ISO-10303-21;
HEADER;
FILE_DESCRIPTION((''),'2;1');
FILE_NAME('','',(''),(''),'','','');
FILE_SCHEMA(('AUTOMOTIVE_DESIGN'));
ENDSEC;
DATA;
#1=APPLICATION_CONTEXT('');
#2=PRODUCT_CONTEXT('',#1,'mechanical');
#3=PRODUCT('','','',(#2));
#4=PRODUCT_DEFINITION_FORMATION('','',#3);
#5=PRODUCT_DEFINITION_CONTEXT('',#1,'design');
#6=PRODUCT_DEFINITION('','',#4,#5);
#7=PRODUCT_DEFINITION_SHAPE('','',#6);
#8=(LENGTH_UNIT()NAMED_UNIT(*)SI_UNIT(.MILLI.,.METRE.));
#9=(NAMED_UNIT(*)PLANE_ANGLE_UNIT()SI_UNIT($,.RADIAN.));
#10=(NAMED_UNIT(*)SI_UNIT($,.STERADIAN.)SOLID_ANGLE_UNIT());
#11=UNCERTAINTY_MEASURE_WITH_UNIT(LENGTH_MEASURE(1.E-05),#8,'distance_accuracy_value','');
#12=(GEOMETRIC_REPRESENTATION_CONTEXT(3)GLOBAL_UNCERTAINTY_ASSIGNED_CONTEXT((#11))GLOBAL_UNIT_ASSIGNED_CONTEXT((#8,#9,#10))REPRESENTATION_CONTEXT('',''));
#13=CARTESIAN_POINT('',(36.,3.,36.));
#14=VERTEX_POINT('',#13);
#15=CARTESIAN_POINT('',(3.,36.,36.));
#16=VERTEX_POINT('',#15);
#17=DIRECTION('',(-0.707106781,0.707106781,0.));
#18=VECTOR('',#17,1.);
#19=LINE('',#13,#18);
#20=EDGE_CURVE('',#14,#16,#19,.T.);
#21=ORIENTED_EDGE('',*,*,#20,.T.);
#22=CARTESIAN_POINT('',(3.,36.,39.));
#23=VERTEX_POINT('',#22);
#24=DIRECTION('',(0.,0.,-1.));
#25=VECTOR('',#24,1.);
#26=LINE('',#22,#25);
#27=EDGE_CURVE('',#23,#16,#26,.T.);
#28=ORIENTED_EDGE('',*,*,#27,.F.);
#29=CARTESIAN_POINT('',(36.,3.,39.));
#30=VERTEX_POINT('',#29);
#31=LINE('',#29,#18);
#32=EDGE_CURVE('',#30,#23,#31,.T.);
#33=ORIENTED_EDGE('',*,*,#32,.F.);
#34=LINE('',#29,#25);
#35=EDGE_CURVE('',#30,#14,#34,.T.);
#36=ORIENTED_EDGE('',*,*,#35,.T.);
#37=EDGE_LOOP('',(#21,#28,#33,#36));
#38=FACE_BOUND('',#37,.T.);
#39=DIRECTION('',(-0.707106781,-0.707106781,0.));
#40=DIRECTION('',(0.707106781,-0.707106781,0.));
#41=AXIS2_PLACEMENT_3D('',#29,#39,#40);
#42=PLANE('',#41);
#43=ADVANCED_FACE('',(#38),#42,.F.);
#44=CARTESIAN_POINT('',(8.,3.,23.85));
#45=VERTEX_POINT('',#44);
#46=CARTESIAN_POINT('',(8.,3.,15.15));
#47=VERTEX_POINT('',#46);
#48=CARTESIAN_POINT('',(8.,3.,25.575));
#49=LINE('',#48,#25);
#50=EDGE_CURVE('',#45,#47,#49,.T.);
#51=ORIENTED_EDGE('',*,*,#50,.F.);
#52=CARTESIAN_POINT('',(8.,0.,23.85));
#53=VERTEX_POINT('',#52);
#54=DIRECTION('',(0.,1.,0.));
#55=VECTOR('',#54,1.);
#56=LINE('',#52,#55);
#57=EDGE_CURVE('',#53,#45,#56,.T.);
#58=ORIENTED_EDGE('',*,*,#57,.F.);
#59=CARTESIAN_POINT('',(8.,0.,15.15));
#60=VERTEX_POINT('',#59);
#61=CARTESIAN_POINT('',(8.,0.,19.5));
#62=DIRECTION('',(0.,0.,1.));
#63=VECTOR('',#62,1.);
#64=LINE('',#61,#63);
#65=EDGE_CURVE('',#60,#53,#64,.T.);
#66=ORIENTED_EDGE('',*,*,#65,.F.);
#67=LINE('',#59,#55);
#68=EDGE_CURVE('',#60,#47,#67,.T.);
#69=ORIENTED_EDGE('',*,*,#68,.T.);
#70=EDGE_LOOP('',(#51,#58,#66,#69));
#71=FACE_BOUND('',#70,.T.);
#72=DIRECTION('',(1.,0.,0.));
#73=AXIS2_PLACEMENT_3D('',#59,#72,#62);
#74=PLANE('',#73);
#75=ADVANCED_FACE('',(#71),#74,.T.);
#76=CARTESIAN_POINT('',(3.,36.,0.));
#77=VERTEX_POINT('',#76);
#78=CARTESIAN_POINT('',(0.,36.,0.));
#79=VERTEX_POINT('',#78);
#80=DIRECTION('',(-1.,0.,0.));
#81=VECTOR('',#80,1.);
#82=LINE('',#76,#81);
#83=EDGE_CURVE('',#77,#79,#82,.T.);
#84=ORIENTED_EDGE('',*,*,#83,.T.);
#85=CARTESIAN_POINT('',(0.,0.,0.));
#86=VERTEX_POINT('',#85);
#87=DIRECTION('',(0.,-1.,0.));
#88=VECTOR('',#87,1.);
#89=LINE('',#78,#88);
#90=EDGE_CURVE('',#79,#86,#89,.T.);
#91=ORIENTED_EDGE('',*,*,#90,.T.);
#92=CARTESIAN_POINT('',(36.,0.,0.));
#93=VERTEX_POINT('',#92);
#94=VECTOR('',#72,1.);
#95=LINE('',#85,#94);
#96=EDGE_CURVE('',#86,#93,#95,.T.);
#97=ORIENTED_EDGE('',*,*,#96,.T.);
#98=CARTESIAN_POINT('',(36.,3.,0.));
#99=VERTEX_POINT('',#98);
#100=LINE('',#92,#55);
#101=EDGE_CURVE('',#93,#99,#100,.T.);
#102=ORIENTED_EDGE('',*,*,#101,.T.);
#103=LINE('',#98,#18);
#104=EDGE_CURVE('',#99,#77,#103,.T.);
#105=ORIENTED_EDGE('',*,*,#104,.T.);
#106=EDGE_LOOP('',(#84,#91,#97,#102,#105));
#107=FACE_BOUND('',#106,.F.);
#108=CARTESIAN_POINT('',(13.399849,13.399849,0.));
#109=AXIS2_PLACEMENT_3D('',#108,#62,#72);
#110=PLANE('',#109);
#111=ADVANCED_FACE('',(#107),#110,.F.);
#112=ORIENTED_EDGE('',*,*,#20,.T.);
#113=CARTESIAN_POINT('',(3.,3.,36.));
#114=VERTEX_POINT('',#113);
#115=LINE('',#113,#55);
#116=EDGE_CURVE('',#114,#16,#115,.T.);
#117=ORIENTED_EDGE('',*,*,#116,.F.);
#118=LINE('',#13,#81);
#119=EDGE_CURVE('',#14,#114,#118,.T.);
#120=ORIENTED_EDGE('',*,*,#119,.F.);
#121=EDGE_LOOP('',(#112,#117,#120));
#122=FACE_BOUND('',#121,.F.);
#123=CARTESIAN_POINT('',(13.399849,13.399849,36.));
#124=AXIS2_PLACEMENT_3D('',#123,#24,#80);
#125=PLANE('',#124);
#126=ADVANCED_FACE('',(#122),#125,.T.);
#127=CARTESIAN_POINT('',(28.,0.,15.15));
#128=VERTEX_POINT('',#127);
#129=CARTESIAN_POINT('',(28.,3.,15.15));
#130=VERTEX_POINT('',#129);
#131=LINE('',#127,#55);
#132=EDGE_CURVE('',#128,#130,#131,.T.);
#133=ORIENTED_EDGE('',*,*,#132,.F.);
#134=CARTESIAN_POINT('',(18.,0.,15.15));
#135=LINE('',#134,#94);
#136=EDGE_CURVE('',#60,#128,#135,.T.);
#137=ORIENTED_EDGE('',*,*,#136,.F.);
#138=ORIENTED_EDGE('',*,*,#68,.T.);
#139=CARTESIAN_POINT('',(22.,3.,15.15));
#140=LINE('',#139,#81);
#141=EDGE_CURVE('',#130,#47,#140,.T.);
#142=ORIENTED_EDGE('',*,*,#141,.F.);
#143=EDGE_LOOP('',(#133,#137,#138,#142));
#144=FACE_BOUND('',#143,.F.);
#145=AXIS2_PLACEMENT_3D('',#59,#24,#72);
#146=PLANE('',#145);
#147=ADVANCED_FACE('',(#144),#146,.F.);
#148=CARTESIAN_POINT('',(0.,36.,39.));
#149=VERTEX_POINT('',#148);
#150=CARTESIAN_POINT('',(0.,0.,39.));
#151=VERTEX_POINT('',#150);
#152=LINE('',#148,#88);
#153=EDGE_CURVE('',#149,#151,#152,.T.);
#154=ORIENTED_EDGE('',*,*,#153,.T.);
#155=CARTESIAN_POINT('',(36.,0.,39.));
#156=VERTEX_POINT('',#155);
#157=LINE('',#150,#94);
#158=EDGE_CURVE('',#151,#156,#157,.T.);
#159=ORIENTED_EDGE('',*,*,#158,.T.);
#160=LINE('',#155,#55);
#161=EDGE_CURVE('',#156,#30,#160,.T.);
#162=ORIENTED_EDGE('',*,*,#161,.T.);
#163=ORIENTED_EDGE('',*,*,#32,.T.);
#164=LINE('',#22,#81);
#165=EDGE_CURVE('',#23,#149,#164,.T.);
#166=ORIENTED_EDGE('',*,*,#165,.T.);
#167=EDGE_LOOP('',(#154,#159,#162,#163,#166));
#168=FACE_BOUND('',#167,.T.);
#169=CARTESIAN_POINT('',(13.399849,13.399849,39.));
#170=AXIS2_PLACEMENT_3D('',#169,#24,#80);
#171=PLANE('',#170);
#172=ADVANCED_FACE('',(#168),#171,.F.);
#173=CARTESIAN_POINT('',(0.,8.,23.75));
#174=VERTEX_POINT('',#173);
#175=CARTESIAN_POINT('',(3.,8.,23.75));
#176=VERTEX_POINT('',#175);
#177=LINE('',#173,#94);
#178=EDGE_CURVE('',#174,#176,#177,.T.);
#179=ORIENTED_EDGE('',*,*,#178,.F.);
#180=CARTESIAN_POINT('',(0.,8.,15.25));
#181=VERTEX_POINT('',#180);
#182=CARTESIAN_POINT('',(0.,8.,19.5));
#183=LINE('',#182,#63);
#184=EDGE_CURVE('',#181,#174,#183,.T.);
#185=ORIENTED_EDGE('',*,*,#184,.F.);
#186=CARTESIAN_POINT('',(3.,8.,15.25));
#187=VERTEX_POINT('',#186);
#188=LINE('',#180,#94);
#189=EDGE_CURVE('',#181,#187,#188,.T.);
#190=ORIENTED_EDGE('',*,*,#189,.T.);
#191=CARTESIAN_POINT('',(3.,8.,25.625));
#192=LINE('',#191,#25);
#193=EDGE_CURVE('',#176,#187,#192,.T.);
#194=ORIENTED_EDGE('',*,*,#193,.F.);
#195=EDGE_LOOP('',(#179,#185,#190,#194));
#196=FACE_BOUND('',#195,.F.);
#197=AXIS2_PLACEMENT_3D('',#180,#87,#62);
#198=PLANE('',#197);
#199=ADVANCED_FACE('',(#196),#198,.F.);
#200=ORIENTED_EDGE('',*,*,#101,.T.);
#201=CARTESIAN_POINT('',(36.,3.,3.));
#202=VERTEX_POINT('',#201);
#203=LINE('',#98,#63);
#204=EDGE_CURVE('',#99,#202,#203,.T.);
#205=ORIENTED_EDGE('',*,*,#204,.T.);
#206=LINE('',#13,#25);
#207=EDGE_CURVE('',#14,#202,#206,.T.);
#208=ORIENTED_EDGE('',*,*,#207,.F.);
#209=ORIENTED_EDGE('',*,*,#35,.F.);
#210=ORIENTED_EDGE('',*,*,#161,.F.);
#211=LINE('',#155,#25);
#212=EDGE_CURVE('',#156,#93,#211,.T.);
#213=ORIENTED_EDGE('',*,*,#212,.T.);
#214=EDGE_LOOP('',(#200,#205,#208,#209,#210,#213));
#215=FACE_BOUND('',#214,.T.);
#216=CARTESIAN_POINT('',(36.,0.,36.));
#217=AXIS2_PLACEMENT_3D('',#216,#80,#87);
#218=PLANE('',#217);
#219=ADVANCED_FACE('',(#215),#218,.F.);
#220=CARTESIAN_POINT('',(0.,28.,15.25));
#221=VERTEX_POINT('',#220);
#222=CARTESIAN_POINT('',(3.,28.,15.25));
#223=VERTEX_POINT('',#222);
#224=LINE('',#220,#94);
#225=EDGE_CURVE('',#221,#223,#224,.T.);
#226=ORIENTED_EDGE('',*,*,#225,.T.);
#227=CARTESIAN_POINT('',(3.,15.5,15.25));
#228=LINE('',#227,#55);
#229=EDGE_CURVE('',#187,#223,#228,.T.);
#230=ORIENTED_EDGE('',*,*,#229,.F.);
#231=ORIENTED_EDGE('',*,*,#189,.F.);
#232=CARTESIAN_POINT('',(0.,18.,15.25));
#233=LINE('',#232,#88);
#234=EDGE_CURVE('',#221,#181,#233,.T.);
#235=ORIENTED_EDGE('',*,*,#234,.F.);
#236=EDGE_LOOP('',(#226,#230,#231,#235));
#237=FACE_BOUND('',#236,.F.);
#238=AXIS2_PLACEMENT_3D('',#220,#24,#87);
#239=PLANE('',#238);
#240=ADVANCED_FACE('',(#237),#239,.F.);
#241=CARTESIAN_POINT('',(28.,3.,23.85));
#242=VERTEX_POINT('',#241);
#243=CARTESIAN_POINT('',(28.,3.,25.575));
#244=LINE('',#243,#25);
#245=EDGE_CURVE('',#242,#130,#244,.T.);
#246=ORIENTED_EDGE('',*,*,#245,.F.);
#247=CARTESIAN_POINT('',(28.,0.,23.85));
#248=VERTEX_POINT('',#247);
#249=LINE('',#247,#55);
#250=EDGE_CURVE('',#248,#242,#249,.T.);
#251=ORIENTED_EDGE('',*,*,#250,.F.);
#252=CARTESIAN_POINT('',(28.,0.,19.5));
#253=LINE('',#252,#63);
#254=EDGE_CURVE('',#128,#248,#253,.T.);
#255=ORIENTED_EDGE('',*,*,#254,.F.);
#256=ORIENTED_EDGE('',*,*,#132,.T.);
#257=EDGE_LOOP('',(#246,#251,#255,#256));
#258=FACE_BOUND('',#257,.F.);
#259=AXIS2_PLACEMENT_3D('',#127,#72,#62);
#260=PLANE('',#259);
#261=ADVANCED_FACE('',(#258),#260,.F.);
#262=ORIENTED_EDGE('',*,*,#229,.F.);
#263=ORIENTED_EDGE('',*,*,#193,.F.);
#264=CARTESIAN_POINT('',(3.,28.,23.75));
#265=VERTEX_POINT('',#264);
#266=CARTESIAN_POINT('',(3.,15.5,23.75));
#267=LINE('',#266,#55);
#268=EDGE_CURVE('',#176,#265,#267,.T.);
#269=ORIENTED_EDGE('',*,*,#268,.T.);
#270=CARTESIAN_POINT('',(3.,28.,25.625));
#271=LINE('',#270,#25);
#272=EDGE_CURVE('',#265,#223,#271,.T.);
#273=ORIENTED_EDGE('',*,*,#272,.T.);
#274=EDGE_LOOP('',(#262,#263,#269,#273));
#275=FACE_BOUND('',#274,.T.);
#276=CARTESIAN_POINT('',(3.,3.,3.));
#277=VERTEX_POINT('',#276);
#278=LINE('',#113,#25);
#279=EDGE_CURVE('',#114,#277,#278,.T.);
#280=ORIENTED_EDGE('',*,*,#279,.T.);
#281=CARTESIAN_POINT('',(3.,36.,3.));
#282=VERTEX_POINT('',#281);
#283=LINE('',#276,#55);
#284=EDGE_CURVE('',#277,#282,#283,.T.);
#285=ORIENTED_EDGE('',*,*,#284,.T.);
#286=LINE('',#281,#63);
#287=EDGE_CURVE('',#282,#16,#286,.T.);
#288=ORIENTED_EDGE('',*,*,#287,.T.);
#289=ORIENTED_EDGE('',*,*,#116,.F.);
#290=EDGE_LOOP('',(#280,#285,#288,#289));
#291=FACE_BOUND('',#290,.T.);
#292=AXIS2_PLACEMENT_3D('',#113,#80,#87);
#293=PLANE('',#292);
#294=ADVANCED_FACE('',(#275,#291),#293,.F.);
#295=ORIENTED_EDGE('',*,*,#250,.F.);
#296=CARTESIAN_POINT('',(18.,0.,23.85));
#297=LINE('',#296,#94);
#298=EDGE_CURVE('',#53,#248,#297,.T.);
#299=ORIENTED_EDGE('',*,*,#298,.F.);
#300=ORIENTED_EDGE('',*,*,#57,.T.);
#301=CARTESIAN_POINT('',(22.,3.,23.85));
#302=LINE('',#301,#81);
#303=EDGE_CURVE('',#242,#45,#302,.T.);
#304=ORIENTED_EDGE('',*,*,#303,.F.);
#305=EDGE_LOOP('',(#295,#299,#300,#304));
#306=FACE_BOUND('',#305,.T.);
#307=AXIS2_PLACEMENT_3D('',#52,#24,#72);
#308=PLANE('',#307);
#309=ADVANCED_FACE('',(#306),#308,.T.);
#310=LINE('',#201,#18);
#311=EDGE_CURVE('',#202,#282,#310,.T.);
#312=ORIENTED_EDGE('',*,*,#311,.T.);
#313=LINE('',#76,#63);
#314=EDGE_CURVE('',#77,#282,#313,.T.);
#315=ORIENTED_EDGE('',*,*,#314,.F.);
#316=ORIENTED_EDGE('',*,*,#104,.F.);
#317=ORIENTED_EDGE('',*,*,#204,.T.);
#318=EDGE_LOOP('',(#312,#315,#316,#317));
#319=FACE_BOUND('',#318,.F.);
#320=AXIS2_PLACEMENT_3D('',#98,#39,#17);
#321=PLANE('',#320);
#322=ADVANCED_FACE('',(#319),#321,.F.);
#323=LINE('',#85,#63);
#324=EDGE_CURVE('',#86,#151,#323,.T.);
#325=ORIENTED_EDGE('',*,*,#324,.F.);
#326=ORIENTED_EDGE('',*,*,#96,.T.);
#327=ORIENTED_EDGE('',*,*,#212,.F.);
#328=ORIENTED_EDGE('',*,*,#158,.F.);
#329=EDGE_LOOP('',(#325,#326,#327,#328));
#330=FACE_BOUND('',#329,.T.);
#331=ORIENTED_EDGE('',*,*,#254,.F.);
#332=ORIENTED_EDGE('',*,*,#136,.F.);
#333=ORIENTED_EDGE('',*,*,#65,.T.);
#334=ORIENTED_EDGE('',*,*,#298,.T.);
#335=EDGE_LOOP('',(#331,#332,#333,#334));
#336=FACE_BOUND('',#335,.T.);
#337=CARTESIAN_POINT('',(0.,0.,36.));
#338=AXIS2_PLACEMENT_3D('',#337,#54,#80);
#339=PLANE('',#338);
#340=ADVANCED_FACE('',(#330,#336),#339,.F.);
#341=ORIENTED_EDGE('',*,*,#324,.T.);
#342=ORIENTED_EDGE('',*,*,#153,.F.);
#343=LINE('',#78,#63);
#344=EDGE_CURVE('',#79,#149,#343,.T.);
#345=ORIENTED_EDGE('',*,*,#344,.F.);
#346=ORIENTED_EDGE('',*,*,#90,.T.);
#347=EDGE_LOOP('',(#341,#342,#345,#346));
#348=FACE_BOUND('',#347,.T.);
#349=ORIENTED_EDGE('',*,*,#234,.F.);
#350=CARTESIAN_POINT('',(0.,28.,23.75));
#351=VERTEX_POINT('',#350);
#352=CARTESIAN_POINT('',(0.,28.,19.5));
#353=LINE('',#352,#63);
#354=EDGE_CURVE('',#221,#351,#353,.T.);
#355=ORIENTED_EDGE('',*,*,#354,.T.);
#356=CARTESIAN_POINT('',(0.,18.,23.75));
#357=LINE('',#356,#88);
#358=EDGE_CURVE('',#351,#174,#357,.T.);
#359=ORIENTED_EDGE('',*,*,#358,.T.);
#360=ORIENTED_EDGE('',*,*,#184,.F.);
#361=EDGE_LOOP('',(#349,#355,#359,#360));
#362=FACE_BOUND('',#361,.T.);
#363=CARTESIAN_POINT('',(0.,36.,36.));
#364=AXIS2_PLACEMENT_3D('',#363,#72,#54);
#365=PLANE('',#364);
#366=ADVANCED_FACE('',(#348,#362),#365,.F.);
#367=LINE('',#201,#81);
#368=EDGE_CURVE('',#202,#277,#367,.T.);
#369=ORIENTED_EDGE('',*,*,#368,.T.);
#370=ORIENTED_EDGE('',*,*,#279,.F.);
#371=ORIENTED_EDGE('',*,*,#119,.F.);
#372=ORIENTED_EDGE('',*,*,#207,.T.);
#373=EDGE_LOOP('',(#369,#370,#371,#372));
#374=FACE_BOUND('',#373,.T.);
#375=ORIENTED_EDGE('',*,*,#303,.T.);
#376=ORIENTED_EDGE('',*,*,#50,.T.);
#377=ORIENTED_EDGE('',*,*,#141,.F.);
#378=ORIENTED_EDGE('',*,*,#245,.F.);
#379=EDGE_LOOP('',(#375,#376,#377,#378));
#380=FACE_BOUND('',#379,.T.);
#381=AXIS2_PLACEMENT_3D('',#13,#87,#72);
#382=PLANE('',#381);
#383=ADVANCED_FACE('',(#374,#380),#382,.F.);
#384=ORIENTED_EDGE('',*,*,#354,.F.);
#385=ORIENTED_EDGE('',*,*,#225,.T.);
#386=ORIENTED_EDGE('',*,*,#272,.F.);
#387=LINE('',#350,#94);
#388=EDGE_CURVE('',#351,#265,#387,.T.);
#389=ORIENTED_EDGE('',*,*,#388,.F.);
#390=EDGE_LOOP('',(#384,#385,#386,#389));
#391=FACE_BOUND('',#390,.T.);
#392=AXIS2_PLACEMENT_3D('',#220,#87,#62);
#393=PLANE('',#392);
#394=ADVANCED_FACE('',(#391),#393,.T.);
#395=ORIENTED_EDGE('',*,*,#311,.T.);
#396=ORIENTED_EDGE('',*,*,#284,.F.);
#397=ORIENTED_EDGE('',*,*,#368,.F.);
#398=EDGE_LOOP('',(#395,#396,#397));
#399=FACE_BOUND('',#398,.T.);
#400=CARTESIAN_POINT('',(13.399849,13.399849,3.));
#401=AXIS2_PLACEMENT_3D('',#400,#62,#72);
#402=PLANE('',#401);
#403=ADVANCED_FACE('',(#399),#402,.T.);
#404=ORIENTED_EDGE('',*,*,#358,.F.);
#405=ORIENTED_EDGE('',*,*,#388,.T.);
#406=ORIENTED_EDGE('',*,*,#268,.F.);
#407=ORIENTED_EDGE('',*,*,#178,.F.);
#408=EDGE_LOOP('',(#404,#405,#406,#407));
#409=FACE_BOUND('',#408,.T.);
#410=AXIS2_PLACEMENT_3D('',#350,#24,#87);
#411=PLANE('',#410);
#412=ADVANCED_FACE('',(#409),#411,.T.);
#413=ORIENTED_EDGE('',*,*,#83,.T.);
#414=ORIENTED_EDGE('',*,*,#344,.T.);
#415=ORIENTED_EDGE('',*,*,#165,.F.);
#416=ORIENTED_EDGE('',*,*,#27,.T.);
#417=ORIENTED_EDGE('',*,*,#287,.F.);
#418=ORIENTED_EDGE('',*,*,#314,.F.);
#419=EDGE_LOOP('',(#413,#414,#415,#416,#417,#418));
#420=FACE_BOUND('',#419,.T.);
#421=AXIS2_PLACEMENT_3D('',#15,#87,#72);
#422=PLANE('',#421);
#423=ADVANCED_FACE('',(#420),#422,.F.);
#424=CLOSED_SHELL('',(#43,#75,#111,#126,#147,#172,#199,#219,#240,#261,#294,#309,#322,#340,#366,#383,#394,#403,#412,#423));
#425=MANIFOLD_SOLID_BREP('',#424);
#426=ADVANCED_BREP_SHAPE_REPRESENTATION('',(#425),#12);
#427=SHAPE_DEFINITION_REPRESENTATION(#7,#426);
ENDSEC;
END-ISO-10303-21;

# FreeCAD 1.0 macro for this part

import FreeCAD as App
import Part
import Sketcher

doc = App.newDocument("Part")
params = doc.addObject("Spreadsheet::Sheet", "Params")
for row, (alias, value) in enumerate([
    ("sketch1_width", "36 mm"),
    ("sketch1_width2", "3 mm"),
    ("pad1_length", "3 mm"),
    ("sketch2_width", "3 mm"),
    ("sketch2_width2", "36 mm"),
    ("pad2_length", "16.5 mm"),
    ("sketch3_width", "20 mm"),
    ("sketch3_height", "8.7 mm"),
    ("pocket1_length", "25 mm"),
    ("sketch4_width", "20 mm"),
    ("sketch4_height", "8.5 mm"),
    ("pocket2_length", "25 mm"),
], start=1):
    params.set(f"A{row}", alias)
    params.set(f"B{row}", "=" + value)
    params.setAlias(f"B{row}", alias)

body = doc.addObject("PartDesign::Body", "Body")

# Sketch on XY plane
sketch1 = body.newObject("Sketcher::SketchObject", "Sketch")
sketch1.AttachmentSupport = (doc.getObject("XY_Plane"), [""])
sketch1.MapMode = "FlatFace"
sketch1.addGeometry([
    Part.LineSegment(App.Vector(0, 36, 0), App.Vector(0, 0, 0)),  # 0
    Part.LineSegment(App.Vector(0, 0, 0), App.Vector(36, 0, 0)),  # 1
    Part.LineSegment(App.Vector(36, 0, 0), App.Vector(36, 3, 0)),  # 2
    Part.LineSegment(App.Vector(36, 3, 0), App.Vector(3, 36, 0)),  # 3
    Part.LineSegment(App.Vector(3, 36, 0), App.Vector(0, 36, 0)),  # 4
], False)
sketch1.addConstraint([
    Sketcher.Constraint("Coincident", 0, 2, 1, 1),
    Sketcher.Constraint("Coincident", 1, 2, 2, 1),
    Sketcher.Constraint("Coincident", 2, 2, 3, 1),
    Sketcher.Constraint("Coincident", 3, 2, 4, 1),
    Sketcher.Constraint("Coincident", 4, 2, 0, 1),
    Sketcher.Constraint("Vertical", 0),
    Sketcher.Constraint("Horizontal", 1),
    Sketcher.Constraint("Vertical", 2),
    Sketcher.Constraint("Horizontal", 4),
    Sketcher.Constraint("Coincident", 0, 2, -1, 1),
    Sketcher.Constraint("Equal", 1, 0),
    Sketcher.Constraint("Equal", 4, 2),
    Sketcher.Constraint("DistanceX", 1, 1, 1, 2, 36.0),
    Sketcher.Constraint("DistanceX", 4, 2, 4, 1, 3.0),
])
sketch1.setExpression("Constraints[12]", "Params.sketch1_width")
sketch1.setExpression("Constraints[13]", "Params.sketch1_width2")
pad1 = body.newObject("PartDesign::Pad", "Pad")
pad1.Profile = sketch1
pad1.setExpression("Length", "Params.pad1_length")

# Sketch on XY plane
sketch2 = body.newObject("Sketcher::SketchObject", "Sketch001")
sketch2.AttachmentSupport = (doc.getObject("XY_Plane"), [""])
sketch2.MapMode = "FlatFace"
sketch2.AttachmentOffset = App.Placement(App.Vector(0, 0, 3), App.Rotation())
sketch2.addGeometry([
    Part.LineSegment(App.Vector(3, 3, 0), App.Vector(3, 36, 0)),  # 0
    Part.LineSegment(App.Vector(3, 36, 0), App.Vector(0, 36, 0)),  # 1
    Part.LineSegment(App.Vector(0, 36, 0), App.Vector(0, 0, 0)),  # 2
    Part.LineSegment(App.Vector(0, 0, 0), App.Vector(36, 0, 0)),  # 3
    Part.LineSegment(App.Vector(36, 0, 0), App.Vector(36, 3, 0)),  # 4
    Part.LineSegment(App.Vector(36, 3, 0), App.Vector(3, 3, 0)),  # 5
], False)
sketch2.addConstraint([
    Sketcher.Constraint("Coincident", 0, 2, 1, 1),
    Sketcher.Constraint("Coincident", 1, 2, 2, 1),
    Sketcher.Constraint("Coincident", 2, 2, 3, 1),
    Sketcher.Constraint("Coincident", 3, 2, 4, 1),
    Sketcher.Constraint("Coincident", 4, 2, 5, 1),
    Sketcher.Constraint("Coincident", 5, 2, 0, 1),
    Sketcher.Constraint("Vertical", 0),
    Sketcher.Constraint("Horizontal", 1),
    Sketcher.Constraint("Vertical", 2),
    Sketcher.Constraint("Horizontal", 3),
    Sketcher.Constraint("Vertical", 4),
    Sketcher.Constraint("Horizontal", 5),
    Sketcher.Constraint("Coincident", 2, 2, -1, 1),
    Sketcher.Constraint("Equal", 5, 0),
    Sketcher.Constraint("Equal", 3, 2),
    Sketcher.Constraint("DistanceX", 1, 2, 1, 1, 3.0),
    Sketcher.Constraint("DistanceX", 3, 1, 3, 2, 36.0),
])
sketch2.setExpression("Constraints[15]", "Params.sketch2_width")
sketch2.setExpression("Constraints[16]", "Params.sketch2_width2")
pad2 = body.newObject("PartDesign::Pad", "Pad001")
pad2.Profile = sketch2
pad2.setExpression("Length", "Params.pad2_length")
body2 = doc.addObject("PartDesign::Body", "Body001")
doc.recompute()

body2.BaseFeature = body
doc.recompute()

mirroring = doc.addObject("Part::Mirroring", "Mirroring")
mirroring.Source = body
mirroring.Base = App.Vector(10.108696, 10.108696, 19.5)
mirroring.Normal = App.Vector(0, 0, 1)
body3 = doc.addObject("PartDesign::Body", "Body002")
body3.BaseFeature = mirroring
boolean = body2.newObject("PartDesign::Boolean", "Boolean")
boolean.Type = "Fuse"
boolean.addObjects([body3])
doc.recompute()

# Sketch on XZ plane
sketch3 = body2.newObject("Sketcher::SketchObject", "Sketch002")
sketch3.AttachmentSupport = (doc.getObject("XZ_Plane001"), [""])
sketch3.MapMode = "FlatFace"
sketch3.addGeometry([
    Part.LineSegment(App.Vector(8, 24, 0), App.Vector(8, 15, 0)),
    Part.LineSegment(App.Vector(8, 15, 0), App.Vector(28, 15, 0)),
    Part.LineSegment(App.Vector(28, 15, 0), App.Vector(28, 24, 0)),
    Part.LineSegment(App.Vector(28, 24, 0), App.Vector(8, 24, 0)),
], False)
sketch3.addConstraint([
    Sketcher.Constraint("Coincident", 0, 2, 1, 1),
    Sketcher.Constraint("Coincident", 1, 2, 2, 1),
    Sketcher.Constraint("Coincident", 2, 2, 3, 1),
    Sketcher.Constraint("Coincident", 3, 2, 0, 1),
    Sketcher.Constraint("Vertical", 0),
    Sketcher.Constraint("Horizontal", 1),
    Sketcher.Constraint("Vertical", 2),
    Sketcher.Constraint("Horizontal", 3),
    Sketcher.Constraint("DistanceX", 1, 1, 1, 2, 20.0),
    Sketcher.Constraint("DistanceY", 0, 2, 0, 1, 8.7),
    Sketcher.Constraint("DistanceX", -1, 1, 0, 2, 8.0),
    Sketcher.Constraint("DistanceY", -1, 1, 0, 2, 15.15),
])
sketch3.setExpression("Constraints[8]", "Params.sketch3_width")
sketch3.setExpression("Constraints[9]", "Params.sketch3_height")
pocket1 = body2.newObject("PartDesign::Pocket", "Pocket")
pocket1.Profile = sketch3
pocket1.setExpression("Length", "Params.pocket1_length")

# Sketch on YZ plane
sketch4 = body2.newObject("Sketcher::SketchObject", "Sketch003")
sketch4.AttachmentSupport = (doc.getObject("YZ_Plane001"), [""])
sketch4.MapMode = "FlatFace"
sketch4.addGeometry([
    Part.LineSegment(App.Vector(28, 24, 0), App.Vector(28, 15, 0)),
    Part.LineSegment(App.Vector(28, 15, 0), App.Vector(8, 15, 0)),
    Part.LineSegment(App.Vector(8, 15, 0), App.Vector(8, 24, 0)),
    Part.LineSegment(App.Vector(8, 24, 0), App.Vector(28, 24, 0)),
], False)
sketch4.addConstraint([
    Sketcher.Constraint("Coincident", 0, 2, 1, 1),
    Sketcher.Constraint("Coincident", 1, 2, 2, 1),
    Sketcher.Constraint("Coincident", 2, 2, 3, 1),
    Sketcher.Constraint("Coincident", 3, 2, 0, 1),
    Sketcher.Constraint("Vertical", 0),
    Sketcher.Constraint("Horizontal", 1),
    Sketcher.Constraint("Vertical", 2),
    Sketcher.Constraint("Horizontal", 3),
    Sketcher.Constraint("DistanceX", 1, 2, 1, 1, 20.0),
    Sketcher.Constraint("DistanceY", 0, 2, 0, 1, 8.5),
    Sketcher.Constraint("DistanceX", -1, 1, 0, 2, 28.0),
    Sketcher.Constraint("DistanceY", -1, 1, 0, 2, 15.25),
])
sketch4.setExpression("Constraints[8]", "Params.sketch4_width")
sketch4.setExpression("Constraints[9]", "Params.sketch4_height")
pocket2 = body2.newObject("PartDesign::Pocket", "Pocket001")
pocket2.Profile = sketch4
pocket2.setExpression("Length", "Params.pocket2_length")
pocket2.Reversed = True
mirroring.Visibility = False

doc.recompute()
